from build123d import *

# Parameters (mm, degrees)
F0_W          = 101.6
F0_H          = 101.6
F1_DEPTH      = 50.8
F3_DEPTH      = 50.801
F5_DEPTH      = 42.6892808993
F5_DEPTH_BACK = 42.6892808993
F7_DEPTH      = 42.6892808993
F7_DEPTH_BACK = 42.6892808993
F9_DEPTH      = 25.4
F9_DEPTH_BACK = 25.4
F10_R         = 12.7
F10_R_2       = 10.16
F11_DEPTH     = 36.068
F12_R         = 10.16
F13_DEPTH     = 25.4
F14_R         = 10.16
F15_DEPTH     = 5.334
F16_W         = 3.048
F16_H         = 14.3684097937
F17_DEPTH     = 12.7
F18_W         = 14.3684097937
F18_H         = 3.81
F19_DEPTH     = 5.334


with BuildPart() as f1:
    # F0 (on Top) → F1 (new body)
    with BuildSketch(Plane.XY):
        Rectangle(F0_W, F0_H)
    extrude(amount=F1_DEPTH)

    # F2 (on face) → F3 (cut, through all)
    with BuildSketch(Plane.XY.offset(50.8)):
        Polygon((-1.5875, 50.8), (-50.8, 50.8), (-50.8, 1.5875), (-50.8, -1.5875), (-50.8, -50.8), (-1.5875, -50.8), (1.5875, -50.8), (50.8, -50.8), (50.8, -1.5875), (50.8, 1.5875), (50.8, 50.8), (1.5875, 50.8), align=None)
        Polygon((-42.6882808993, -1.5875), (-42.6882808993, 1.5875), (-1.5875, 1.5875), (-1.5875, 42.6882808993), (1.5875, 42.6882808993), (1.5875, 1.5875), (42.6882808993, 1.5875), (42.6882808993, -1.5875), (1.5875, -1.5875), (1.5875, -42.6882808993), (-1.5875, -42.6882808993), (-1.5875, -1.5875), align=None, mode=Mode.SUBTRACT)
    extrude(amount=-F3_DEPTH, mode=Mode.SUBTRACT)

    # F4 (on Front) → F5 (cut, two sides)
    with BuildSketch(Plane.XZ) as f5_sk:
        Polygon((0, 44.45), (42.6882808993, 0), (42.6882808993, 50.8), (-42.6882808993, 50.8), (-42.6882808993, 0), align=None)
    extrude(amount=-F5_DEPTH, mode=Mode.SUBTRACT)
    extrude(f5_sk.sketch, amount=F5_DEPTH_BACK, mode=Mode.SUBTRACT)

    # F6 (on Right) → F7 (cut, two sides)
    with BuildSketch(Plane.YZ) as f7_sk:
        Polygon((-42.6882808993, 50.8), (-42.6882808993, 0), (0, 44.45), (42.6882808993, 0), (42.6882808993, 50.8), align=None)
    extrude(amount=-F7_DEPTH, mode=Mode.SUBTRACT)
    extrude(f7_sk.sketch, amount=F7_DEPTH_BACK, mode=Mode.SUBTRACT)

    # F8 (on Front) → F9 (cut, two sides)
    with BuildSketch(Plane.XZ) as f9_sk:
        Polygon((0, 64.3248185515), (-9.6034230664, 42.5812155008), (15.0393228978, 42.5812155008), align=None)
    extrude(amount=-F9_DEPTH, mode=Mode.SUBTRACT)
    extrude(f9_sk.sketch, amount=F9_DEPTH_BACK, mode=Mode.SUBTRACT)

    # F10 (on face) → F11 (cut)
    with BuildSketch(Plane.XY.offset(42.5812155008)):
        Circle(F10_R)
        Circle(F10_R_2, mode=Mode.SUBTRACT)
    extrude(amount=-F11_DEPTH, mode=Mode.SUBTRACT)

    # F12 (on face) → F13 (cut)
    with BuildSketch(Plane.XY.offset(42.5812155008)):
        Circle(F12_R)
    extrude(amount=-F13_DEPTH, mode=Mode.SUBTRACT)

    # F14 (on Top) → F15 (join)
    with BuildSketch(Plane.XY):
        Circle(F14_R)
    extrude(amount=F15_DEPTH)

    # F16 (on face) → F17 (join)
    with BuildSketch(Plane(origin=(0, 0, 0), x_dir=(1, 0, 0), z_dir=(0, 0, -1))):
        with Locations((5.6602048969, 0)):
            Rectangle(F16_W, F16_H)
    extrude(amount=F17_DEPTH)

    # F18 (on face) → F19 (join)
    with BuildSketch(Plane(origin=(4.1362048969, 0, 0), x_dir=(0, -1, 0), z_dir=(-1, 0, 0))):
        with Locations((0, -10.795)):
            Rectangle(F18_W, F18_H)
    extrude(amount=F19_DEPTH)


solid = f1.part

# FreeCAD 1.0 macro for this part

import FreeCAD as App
import Part
import Sketcher
Q = App.Units.Quantity

doc = App.newDocument("Part")
body = doc.addObject("PartDesign::Body", "Body")

sketch1 = doc.addObject("Sketcher::SketchObject", "Sketch")
body.addObject(sketch1)
sketch1.AttachmentSupport = (doc.XY_Plane, [""])
sketch1.MapMode = "FlatFace"
sketch1.addGeometry([
    Part.LineSegment(App.Vector(-51, 51, 0), App.Vector(-51, -51, 0)),
    Part.LineSegment(App.Vector(-51, -51, 0), App.Vector(51, -51, 0)),
    Part.LineSegment(App.Vector(51, -51, 0), App.Vector(51, 51, 0)),
    Part.LineSegment(App.Vector(51, 51, 0), App.Vector(-51, 51, 0)),
], False)
sketch1.addConstraint([
    Sketcher.Constraint("Coincident", 0, 2, 1, 1),
    Sketcher.Constraint("Coincident", 1, 2, 2, 1),
    Sketcher.Constraint("Coincident", 2, 2, 3, 1),
    Sketcher.Constraint("Coincident", 3, 2, 0, 1),
    Sketcher.Constraint("Vertical", 0),
    Sketcher.Constraint("Horizontal", 1),
    Sketcher.Constraint("Vertical", 2),
    Sketcher.Constraint("Horizontal", 3),
    Sketcher.Constraint("Symmetric", 0, 2, 2, 2, -1, 1),
    Sketcher.Constraint("Equal", 3, 0),
    Sketcher.Constraint("DistanceX", 1, 1, 1, 2, Q("4 in")),
])
pad1 = doc.addObject("PartDesign::Pad", "Pad")
body.addObject(pad1)
pad1.Profile = sketch1
pad1.Length = Q("2 in")

sketch2 = doc.addObject("Sketcher::SketchObject", "Sketch001")
body.addObject(sketch2)
sketch2.AttachmentSupport = (doc.XY_Plane, [""])
sketch2.MapMode = "FlatFace"
sketch2.AttachmentOffset = App.Placement(App.Vector(0, 0, 2 * 25.4), App.Rotation())
sketch2.addGeometry([
    Part.LineSegment(App.Vector(-50.8, 50.8, 0), App.Vector(-50.8, -50.8, 0)),
    Part.LineSegment(App.Vector(-50.8, -50.8, 0), App.Vector(50.8, -50.8, 0)),
    Part.LineSegment(App.Vector(50.8, -50.8, 0), App.Vector(50.8, 50.8, 0)),
    Part.LineSegment(App.Vector(50.8, 50.8, 0), App.Vector(-50.8, 50.8, 0)),
    Part.LineSegment(App.Vector(-1.6, -1.6, 0), App.Vector(-42.7, -1.6, 0)),
    Part.LineSegment(App.Vector(-42.7, -1.6, 0), App.Vector(-42.7, 1.6, 0)),
    Part.LineSegment(App.Vector(-42.7, 1.6, 0), App.Vector(-1.6, 1.6, 0)),
    Part.LineSegment(App.Vector(-1.6, 1.6, 0), App.Vector(-1.6, 42.7, 0)),
    Part.LineSegment(App.Vector(-1.6, 42.7, 0), App.Vector(1.6, 42.7, 0)),
    Part.LineSegment(App.Vector(1.6, 42.7, 0), App.Vector(1.6, 1.6, 0)),
    Part.LineSegment(App.Vector(1.6, 1.6, 0), App.Vector(42.7, 1.6, 0)),
    Part.LineSegment(App.Vector(42.7, 1.6, 0), App.Vector(42.7, -1.6, 0)),
    Part.LineSegment(App.Vector(42.7, -1.6, 0), App.Vector(1.6, -1.6, 0)),
    Part.LineSegment(App.Vector(1.6, -1.6, 0), App.Vector(1.6, -42.7, 0)),
    Part.LineSegment(App.Vector(1.6, -42.7, 0), App.Vector(-1.6, -42.7, 0)),
    Part.LineSegment(App.Vector(-1.6, -42.7, 0), App.Vector(-1.6, -1.6, 0)),
], False)
sketch2.addConstraint([
    Sketcher.Constraint("Coincident", 0, 2, 1, 1),
    Sketcher.Constraint("Coincident", 1, 2, 2, 1),
    Sketcher.Constraint("Coincident", 2, 2, 3, 1),
    Sketcher.Constraint("Coincident", 3, 2, 0, 1),
    Sketcher.Constraint("Coincident", 4, 2, 5, 1),
    Sketcher.Constraint("Coincident", 5, 2, 6, 1),
    Sketcher.Constraint("Coincident", 6, 2, 7, 1),
    Sketcher.Constraint("Coincident", 7, 2, 8, 1),
    Sketcher.Constraint("Coincident", 8, 2, 9, 1),
    Sketcher.Constraint("Coincident", 9, 2, 10, 1),
    Sketcher.Constraint("Coincident", 10, 2, 11, 1),
    Sketcher.Constraint("Coincident", 11, 2, 12, 1),
    Sketcher.Constraint("Coincident", 12, 2, 13, 1),
    Sketcher.Constraint("Coincident", 13, 2, 14, 1),
    Sketcher.Constraint("Coincident", 14, 2, 15, 1),
    Sketcher.Constraint("Coincident", 15, 2, 4, 1),
    Sketcher.Constraint("Vertical", 0),
    Sketcher.Constraint("Horizontal", 1),
    Sketcher.Constraint("Vertical", 2),
    Sketcher.Constraint("Horizontal", 3),
    Sketcher.Constraint("Horizontal", 4),
    Sketcher.Constraint("Vertical", 5),
    Sketcher.Constraint("Horizontal", 6),
    Sketcher.Constraint("Vertical", 7),
    Sketcher.Constraint("Horizontal", 8),
    Sketcher.Constraint("Vertical", 9),
    Sketcher.Constraint("Horizontal", 10),
    Sketcher.Constraint("Vertical", 11),
    Sketcher.Constraint("Horizontal", 12),
    Sketcher.Constraint("Vertical", 13),
    Sketcher.Constraint("Horizontal", 14),
    Sketcher.Constraint("Vertical", 15),
    Sketcher.Constraint("Symmetric", 0, 2, 2, 2, -1, 1),
    Sketcher.Constraint("Symmetric", 4, 2, 10, 2, -1, 1),
    Sketcher.Constraint("Symmetric", 6, 2, 12, 2, -1, 1),
    Sketcher.Constraint("Symmetric", 8, 2, 14, 2, -1, 1),
    Sketcher.Constraint("Symmetric", 6, 2, 9, 2, -2),
    Sketcher.Constraint("Equal", 3, 0),
    Sketcher.Constraint("Equal", 14, 5),
    Sketcher.Constraint("Equal", 12, 7),
    Sketcher.Constraint("DistanceX", 1, 1, 1, 2, Q("4 in")),
    Sketcher.Constraint("DistanceX", 8, 1, 8, 2, Q("0.125 in")),
    Sketcher.Constraint("DistanceX", 4, 2, 4, 1, Q("41.100781 mm")),
])
pocket1 = doc.addObject("PartDesign::Pocket", "Pocket")
body.addObject(pocket1)
pocket1.Profile = sketch2
pocket1.Type = "ThroughAll"

sketch3 = doc.addObject("Sketcher::SketchObject", "Sketch002")
body.addObject(sketch3)
sketch3.AttachmentSupport = (doc.XZ_Plane, [""])
sketch3.MapMode = "FlatFace"
sketch3.addGeometry([
    Part.LineSegment(App.Vector(0, 44, 0), App.Vector(43, 0, 0)),
    Part.LineSegment(App.Vector(43, 0, 0), App.Vector(43, 51, 0)),
    Part.LineSegment(App.Vector(43, 51, 0), App.Vector(-43, 51, 0)),
    Part.LineSegment(App.Vector(-43, 51, 0), App.Vector(-43, 0, 0)),
    Part.LineSegment(App.Vector(-43, 0, 0), App.Vector(0, 44, 0)),
], False)
sketch3.addConstraint([
    Sketcher.Constraint("Coincident", 0, 2, 1, 1),
    Sketcher.Constraint("Coincident", 1, 2, 2, 1),
    Sketcher.Constraint("Coincident", 2, 2, 3, 1),
    Sketcher.Constraint("Coincident", 3, 2, 4, 1),
    Sketcher.Constraint("Coincident", 4, 2, 0, 1),
    Sketcher.Constraint("Vertical", 1),
    Sketcher.Constraint("Horizontal", 2),
    Sketcher.Constraint("Vertical", 3),
    Sketcher.Constraint("Symmetric", 0, 2, 3, 2, -1, 1),
    Sketcher.Constraint("PointOnObject", 0, 2, -1),
    Sketcher.Constraint("PointOnObject", 4, 2, -2),
    Sketcher.Constraint("DistanceY", 1, 1, 1, 2, Q("2 in")),
    Sketcher.Constraint("DistanceY", -1, 1, 4, 2, Q("1.75 in")),
    Sketcher.Constraint("DistanceX", 2, 2, 2, 1, Q("85.376562 mm")),
])
pocket2 = doc.addObject("PartDesign::Pocket", "Pocket001")
body.addObject(pocket2)
pocket2.Profile = sketch3
pocket2.Type = "ThroughAll"
pocket2.Midplane = True

sketch4 = doc.addObject("Sketcher::SketchObject", "Sketch003")
body.addObject(sketch4)
sketch4.AttachmentSupport = (doc.YZ_Plane, [""])
sketch4.MapMode = "FlatFace"
sketch4.addGeometry([
    Part.LineSegment(App.Vector(-43, 51, 0), App.Vector(-43, 0, 0)),
    Part.LineSegment(App.Vector(-43, 0, 0), App.Vector(0, 44, 0)),
    Part.LineSegment(App.Vector(0, 44, 0), App.Vector(43, 0, 0)),
    Part.LineSegment(App.Vector(43, 0, 0), App.Vector(43, 51, 0)),
    Part.LineSegment(App.Vector(43, 51, 0), App.Vector(-43, 51, 0)),
], False)
sketch4.addConstraint([
    Sketcher.Constraint("Coincident", 0, 2, 1, 1),
    Sketcher.Constraint("Coincident", 1, 2, 2, 1),
    Sketcher.Constraint("Coincident", 2, 2, 3, 1),
    Sketcher.Constraint("Coincident", 3, 2, 4, 1),
    Sketcher.Constraint("Coincident", 4, 2, 0, 1),
    Sketcher.Constraint("Vertical", 0),
    Sketcher.Constraint("Vertical", 3),
    Sketcher.Constraint("Horizontal", 4),
    Sketcher.Constraint("Symmetric", 0, 2, 2, 2, -1, 1),
    Sketcher.Constraint("PointOnObject", 0, 2, -1),
    Sketcher.Constraint("PointOnObject", 1, 2, -2),
    Sketcher.Constraint("DistanceY", 0, 2, 0, 1, Q("2 in")),
    Sketcher.Constraint("DistanceY", -1, 1, 1, 2, Q("1.75 in")),
    Sketcher.Constraint("DistanceX", 4, 2, 4, 1, Q("85.376562 mm")),
])
pocket3 = doc.addObject("PartDesign::Pocket", "Pocket002")
body.addObject(pocket3)
pocket3.Profile = sketch4
pocket3.Type = "ThroughAll"
pocket3.Midplane = True

sketch5 = doc.addObject("Sketcher::SketchObject", "Sketch004")
body.addObject(sketch5)
sketch5.AttachmentSupport = (doc.XZ_Plane, [""])
sketch5.MapMode = "FlatFace"
sketch5.addGeometry([
    Part.LineSegment(App.Vector(0, 64, 0), App.Vector(-10, 43, 0)),
    Part.LineSegment(App.Vector(-10, 43, 0), App.Vector(15, 43, 0)),
    Part.LineSegment(App.Vector(15, 43, 0), App.Vector(0, 64, 0)),
], False)
sketch5.addConstraint([
    Sketcher.Constraint("Coincident", 0, 2, 1, 1),
    Sketcher.Constraint("Coincident", 1, 2, 2, 1),
    Sketcher.Constraint("Coincident", 2, 2, 0, 1),
    Sketcher.Constraint("Horizontal", 1),
    Sketcher.Constraint("PointOnObject", 2, 2, -2),
    Sketcher.Constraint("Distance", 0, Q("23.769939 mm")),
    Sketcher.Constraint("DistanceX", 1, 1, 1, 2, Q("24.642746 mm")),
    Sketcher.Constraint("DistanceY", -1, 1, 2, 2, Q("64.324819 mm")),
    Sketcher.Constraint("Distance", 2, Q("26.437956 mm")),
])
pocket4 = doc.addObject("PartDesign::Pocket", "Pocket003")
body.addObject(pocket4)
pocket4.Profile = sketch5
pocket4.Type = "ThroughAll"
pocket4.Midplane = True

sketch6 = doc.addObject("Sketcher::SketchObject", "Sketch005")
body.addObject(sketch6)
sketch6.AttachmentSupport = (doc.XY_Plane, [""])
sketch6.MapMode = "FlatFace"
sketch6.AttachmentOffset = App.Placement(App.Vector(0, 0, 42.581216), App.Rotation())
sketch6.addGeometry([
    Part.Circle(App.Vector(0, 0, 0), App.Vector(0, 0, 1), 13),
    Part.Circle(App.Vector(0, 0, 0), App.Vector(0, 0, 1), 10),
], False)
sketch6.addConstraint([
    Sketcher.Constraint("Coincident", 0, 3, -1, 1),
    Sketcher.Constraint("Coincident", 1, 3, -1, 1),
    Sketcher.Constraint("Diameter", 0, Q("1 in")),
    Sketcher.Constraint("Diameter", 1, Q("0.8 in")),
])
pocket5 = doc.addObject("PartDesign::Pocket", "Pocket004")
body.addObject(pocket5)
pocket5.Profile = sketch6
pocket5.Length = Q("1.42 in")

sketch7 = doc.addObject("Sketcher::SketchObject", "Sketch006")
body.addObject(sketch7)
sketch7.AttachmentSupport = (doc.XY_Plane, [""])
sketch7.MapMode = "FlatFace"
sketch7.AttachmentOffset = App.Placement(App.Vector(0, 0, 42.581216), App.Rotation())
sketch7.addGeometry(Part.Circle(App.Vector(0, 0, 0), App.Vector(0, 0, 1), 10), False)
sketch7.addConstraint([
    Sketcher.Constraint("Coincident", 0, 3, -1, 1),
    Sketcher.Constraint("Diameter", 0, Q("0.8 in")),
])
pocket6 = doc.addObject("PartDesign::Pocket", "Pocket005")
body.addObject(pocket6)
pocket6.Profile = sketch7
pocket6.Length = Q("1 in")

sketch8 = doc.addObject("Sketcher::SketchObject", "Sketch007")
body.addObject(sketch8)
sketch8.AttachmentSupport = (doc.XY_Plane, [""])
sketch8.MapMode = "FlatFace"
sketch8.addGeometry(Part.Circle(App.Vector(0, 0, 0), App.Vector(0, 0, 1), 10), False)
sketch8.addConstraint([
    Sketcher.Constraint("Coincident", 0, 3, -1, 1),
    Sketcher.Constraint("Diameter", 0, Q("0.8 in")),
])
pad2 = doc.addObject("PartDesign::Pad", "Pad001")
body.addObject(pad2)
pad2.Profile = sketch8
pad2.Length = Q("0.21 in")

sketch9 = doc.addObject("Sketcher::SketchObject", "Sketch008")
body.addObject(sketch9)
sketch9.AttachmentSupport = (doc.XY_Plane, [""])
sketch9.MapMode = "FlatFace"
sketch9.addGeometry([
    Part.LineSegment(App.Vector(4.1, -7.2, 0), App.Vector(4.1, 7.2, 0)),
    Part.LineSegment(App.Vector(4.1, 7.2, 0), App.Vector(7.2, 7.2, 0)),
    Part.LineSegment(App.Vector(7.2, 7.2, 0), App.Vector(7.2, -7.2, 0)),
    Part.LineSegment(App.Vector(7.2, -7.2, 0), App.Vector(4.1, -7.2, 0)),
], False)
sketch9.addConstraint([
    Sketcher.Constraint("Coincident", 0, 2, 1, 1),
    Sketcher.Constraint("Coincident", 1, 2, 2, 1),
    Sketcher.Constraint("Coincident", 2, 2, 3, 1),
    Sketcher.Constraint("Coincident", 3, 2, 0, 1),
    Sketcher.Constraint("Vertical", 0),
    Sketcher.Constraint("Horizontal", 1),
    Sketcher.Constraint("Vertical", 2),
    Sketcher.Constraint("Horizontal", 3),
    Sketcher.Constraint("DistanceX", 1, 1, 1, 2, Q("0.12 in")),
    Sketcher.Constraint("DistanceY", 0, 1, 0, 2, Q("14.36841 mm")),
    Sketcher.Constraint("DistanceX", -1, 1, 0, 2, Q("4.136205 mm")),
    Sketcher.Constraint("DistanceY", -1, 1, 0, 2, Q("7.184205 mm")),
])
pad3 = doc.addObject("PartDesign::Pad", "Pad002")
body.addObject(pad3)
pad3.Profile = sketch9
pad3.Length = Q("0.5 in")
pad3.Reversed = True

sketch10 = doc.addObject("Sketcher::SketchObject", "Sketch009")
body.addObject(sketch10)
sketch10.AttachmentSupport = (doc.YZ_Plane, [""])
sketch10.MapMode = "FlatFace"
sketch10.AttachmentOffset = App.Placement(App.Vector(0, 0, 4.136205), App.Rotation())
sketch10.addGeometry([
    Part.LineSegment(App.Vector(7.2, -8.9, 0), App.Vector(7.2, -12.7, 0)),
    Part.LineSegment(App.Vector(7.2, -12.7, 0), App.Vector(-7.2, -12.7, 0)),
    Part.LineSegment(App.Vector(-7.2, -12.7, 0), App.Vector(-7.2, -8.9, 0)),
    Part.LineSegment(App.Vector(-7.2, -8.9, 0), App.Vector(7.2, -8.9, 0)),
], False)
sketch10.addConstraint([
    Sketcher.Constraint("Coincident", 0, 2, 1, 1),
    Sketcher.Constraint("Coincident", 1, 2, 2, 1),
    Sketcher.Constraint("Coincident", 2, 2, 3, 1),
    Sketcher.Constraint("Coincident", 3, 2, 0, 1),
    Sketcher.Constraint("Vertical", 0),
    Sketcher.Constraint("Horizontal", 1),
    Sketcher.Constraint("Vertical", 2),
    Sketcher.Constraint("Horizontal", 3),
    Sketcher.Constraint("DistanceY", 0, 2, 0, 1, Q("0.15 in")),
    Sketcher.Constraint("DistanceY", 0, 2, -1, 1, Q("0.5 in")),
    Sketcher.Constraint("DistanceX", 1, 2, 1, 1, Q("14.36841 mm")),
    Sketcher.Constraint("DistanceX", -1, 1, 0, 2, Q("7.184205 mm")),
])
pad4 = doc.addObject("PartDesign::Pad", "Pad003")
body.addObject(pad4)
pad4.Profile = sketch10
pad4.Length = Q("0.21 in")
pad4.Reversed = True

doc.recompute()
